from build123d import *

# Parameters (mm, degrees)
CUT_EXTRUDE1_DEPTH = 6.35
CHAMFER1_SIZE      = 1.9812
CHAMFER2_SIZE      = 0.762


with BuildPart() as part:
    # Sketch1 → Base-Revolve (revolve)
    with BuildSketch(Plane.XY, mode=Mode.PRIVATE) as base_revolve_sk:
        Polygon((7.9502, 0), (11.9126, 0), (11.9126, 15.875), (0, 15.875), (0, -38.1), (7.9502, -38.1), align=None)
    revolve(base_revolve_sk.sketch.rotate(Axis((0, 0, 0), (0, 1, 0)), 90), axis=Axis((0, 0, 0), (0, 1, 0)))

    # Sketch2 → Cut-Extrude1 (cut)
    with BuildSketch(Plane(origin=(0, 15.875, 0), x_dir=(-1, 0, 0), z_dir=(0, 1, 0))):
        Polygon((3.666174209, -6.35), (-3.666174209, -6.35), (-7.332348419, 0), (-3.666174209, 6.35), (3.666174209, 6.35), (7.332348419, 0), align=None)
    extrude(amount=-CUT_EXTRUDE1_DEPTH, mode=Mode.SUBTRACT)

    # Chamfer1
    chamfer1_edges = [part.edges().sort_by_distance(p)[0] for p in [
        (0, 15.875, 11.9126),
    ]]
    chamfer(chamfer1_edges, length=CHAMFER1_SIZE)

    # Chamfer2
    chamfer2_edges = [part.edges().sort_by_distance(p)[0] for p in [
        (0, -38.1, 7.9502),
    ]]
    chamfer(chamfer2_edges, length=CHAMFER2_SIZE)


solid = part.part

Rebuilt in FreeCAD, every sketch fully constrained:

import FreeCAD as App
import Part
import Sketcher

V = App.Vector
Q = App.Units.Quantity


def edges_at(feature, points):
    """Names of the edges that pass closest to the given points."""
    edges = feature.Shape.Edges
    near = lambda p: min(range(len(edges)), key=lambda i: edges[i].distToShape(Part.Vertex(*p))[0])
    return sorted({f"Edge{near(p) + 1}" for p in points})


def add_polygon(sketch, points):
    """Adds a closed chain of lines whose ends are joined by coincident constraints."""
    first, n = sketch.GeometryCount, len(points)
    for a, b in zip(points, points[1:] + points[:1]):
        sketch.addGeometry(Part.LineSegment(App.Vector(*a, 0), App.Vector(*b, 0)), False)
    for i in range(n):
        sketch.addConstraint(Sketcher.Constraint("Coincident", first + i, 2, first + (i + 1) % n, 1))

doc = App.newDocument("Part")
body = doc.addObject("PartDesign::Body", "Body")

# Sketch on XY plane
sketch1 = doc.addObject("Sketcher::SketchObject", "Sketch")
body.addObject(sketch1)
sketch1.AttachmentSupport = (doc.XY_Plane, [""])
sketch1.MapMode = "FlatFace"
add_polygon(sketch1, [(7.9502, 0), (11.9126, 0), (11.9126, 15.875), (0, 15.875), (0, -38.1), (7.9502, -38.1)])  # lines 0-5
sketch1.addConstraint(Sketcher.Constraint("Horizontal", 0))
sketch1.addConstraint(Sketcher.Constraint("Vertical", 1))
sketch1.addConstraint(Sketcher.Constraint("Horizontal", 2))
sketch1.addConstraint(Sketcher.Constraint("Vertical", 3))
sketch1.addConstraint(Sketcher.Constraint("Horizontal", 4))
sketch1.addConstraint(Sketcher.Constraint("Vertical", 5))
sketch1.addConstraint(Sketcher.Constraint("PointOnObject", 0, 2, -1))
sketch1.addConstraint(Sketcher.Constraint("PointOnObject", 2, 2, -2))
sketch1.addConstraint(Sketcher.Constraint("DistanceY", 5, 1, 5, 2, Q("1.5 in")))
sketch1.addConstraint(Sketcher.Constraint("DistanceX", 0, 1, 0, 2, Q("0.156 in")))
sketch1.addConstraint(Sketcher.Constraint("DistanceX", 2, 2, 2, 1, Q("0.469 in")))
sketch1.addConstraint(Sketcher.Constraint("DistanceY", 1, 1, 1, 2, Q("0.625 in")))
revolution = doc.addObject("PartDesign::Revolution", "Revolution")
body.addObject(revolution)
revolution.Profile = sketch1
revolution.ReferenceAxis = (sketch1, ["V_Axis"])
revolution.Angle = 360

# Sketch on XZ plane
sketch2 = doc.addObject("Sketcher::SketchObject", "Sketch001")
body.addObject(sketch2)
sketch2.AttachmentSupport = (doc.XZ_Plane, [""])
sketch2.MapMode = "FlatFace"
sketch2.AttachmentOffset = App.Placement(V(0, 0, -0.625 * 25.4), App.Rotation())
add_polygon(sketch2, [(3.666174, -6.35), (-3.666174, -6.35), (-7.332348, 0), (-3.666174, 6.35), (3.666174, 6.35), (7.332348, 0)])  # lines 0-5
sketch2.addConstraint(Sketcher.Constraint("Horizontal", 0))
sketch2.addConstraint(Sketcher.Constraint("Horizontal", 3))
sketch2.addConstraint(Sketcher.Constraint("Symmetric", 0, 2, 3, 2, -1, 1))
sketch2.addConstraint(Sketcher.Constraint("Symmetric", 1, 2, 4, 2, -1, 1))
sketch2.addConstraint(Sketcher.Constraint("PointOnObject", 1, 2, -1))
sketch2.addConstraint(Sketcher.Constraint("Parallel", 2, 5))
sketch2.addConstraint(Sketcher.Constraint("Vertical", 0, 2, 2, 2))
sketch2.addConstraint(Sketcher.Constraint("Angle", 1, Q("120 deg")))
sketch2.addConstraint(Sketcher.Constraint("DistanceY", 0, 2, 2, 2, Q("0.5 in")))
sketch2.addConstraint(Sketcher.Constraint("DistanceX", 0, 2, 0, 1, Q("7.332348 mm")))
pocket1 = doc.addObject("PartDesign::Pocket", "Pocket")
body.addObject(pocket1)
pocket1.Profile = sketch2
pocket1.Length = Q("0.25 in")
pocket1.Reversed = True
doc.recompute()

chamfer = doc.addObject("PartDesign::Chamfer", "Chamfer")
body.addObject(chamfer)
chamfer.Base = (pocket1, edges_at(pocket1, [(0, 15.875, 11.913)]))
chamfer.Size = Q("0.078 in")
doc.recompute()

chamfer2 = doc.addObject("PartDesign::Chamfer", "Chamfer001")
body.addObject(chamfer2)
chamfer2.Base = (chamfer, edges_at(chamfer, [(0, -38.1, 7.95)]))
chamfer2.Size = Q("0.03 in")

doc.recompute()
